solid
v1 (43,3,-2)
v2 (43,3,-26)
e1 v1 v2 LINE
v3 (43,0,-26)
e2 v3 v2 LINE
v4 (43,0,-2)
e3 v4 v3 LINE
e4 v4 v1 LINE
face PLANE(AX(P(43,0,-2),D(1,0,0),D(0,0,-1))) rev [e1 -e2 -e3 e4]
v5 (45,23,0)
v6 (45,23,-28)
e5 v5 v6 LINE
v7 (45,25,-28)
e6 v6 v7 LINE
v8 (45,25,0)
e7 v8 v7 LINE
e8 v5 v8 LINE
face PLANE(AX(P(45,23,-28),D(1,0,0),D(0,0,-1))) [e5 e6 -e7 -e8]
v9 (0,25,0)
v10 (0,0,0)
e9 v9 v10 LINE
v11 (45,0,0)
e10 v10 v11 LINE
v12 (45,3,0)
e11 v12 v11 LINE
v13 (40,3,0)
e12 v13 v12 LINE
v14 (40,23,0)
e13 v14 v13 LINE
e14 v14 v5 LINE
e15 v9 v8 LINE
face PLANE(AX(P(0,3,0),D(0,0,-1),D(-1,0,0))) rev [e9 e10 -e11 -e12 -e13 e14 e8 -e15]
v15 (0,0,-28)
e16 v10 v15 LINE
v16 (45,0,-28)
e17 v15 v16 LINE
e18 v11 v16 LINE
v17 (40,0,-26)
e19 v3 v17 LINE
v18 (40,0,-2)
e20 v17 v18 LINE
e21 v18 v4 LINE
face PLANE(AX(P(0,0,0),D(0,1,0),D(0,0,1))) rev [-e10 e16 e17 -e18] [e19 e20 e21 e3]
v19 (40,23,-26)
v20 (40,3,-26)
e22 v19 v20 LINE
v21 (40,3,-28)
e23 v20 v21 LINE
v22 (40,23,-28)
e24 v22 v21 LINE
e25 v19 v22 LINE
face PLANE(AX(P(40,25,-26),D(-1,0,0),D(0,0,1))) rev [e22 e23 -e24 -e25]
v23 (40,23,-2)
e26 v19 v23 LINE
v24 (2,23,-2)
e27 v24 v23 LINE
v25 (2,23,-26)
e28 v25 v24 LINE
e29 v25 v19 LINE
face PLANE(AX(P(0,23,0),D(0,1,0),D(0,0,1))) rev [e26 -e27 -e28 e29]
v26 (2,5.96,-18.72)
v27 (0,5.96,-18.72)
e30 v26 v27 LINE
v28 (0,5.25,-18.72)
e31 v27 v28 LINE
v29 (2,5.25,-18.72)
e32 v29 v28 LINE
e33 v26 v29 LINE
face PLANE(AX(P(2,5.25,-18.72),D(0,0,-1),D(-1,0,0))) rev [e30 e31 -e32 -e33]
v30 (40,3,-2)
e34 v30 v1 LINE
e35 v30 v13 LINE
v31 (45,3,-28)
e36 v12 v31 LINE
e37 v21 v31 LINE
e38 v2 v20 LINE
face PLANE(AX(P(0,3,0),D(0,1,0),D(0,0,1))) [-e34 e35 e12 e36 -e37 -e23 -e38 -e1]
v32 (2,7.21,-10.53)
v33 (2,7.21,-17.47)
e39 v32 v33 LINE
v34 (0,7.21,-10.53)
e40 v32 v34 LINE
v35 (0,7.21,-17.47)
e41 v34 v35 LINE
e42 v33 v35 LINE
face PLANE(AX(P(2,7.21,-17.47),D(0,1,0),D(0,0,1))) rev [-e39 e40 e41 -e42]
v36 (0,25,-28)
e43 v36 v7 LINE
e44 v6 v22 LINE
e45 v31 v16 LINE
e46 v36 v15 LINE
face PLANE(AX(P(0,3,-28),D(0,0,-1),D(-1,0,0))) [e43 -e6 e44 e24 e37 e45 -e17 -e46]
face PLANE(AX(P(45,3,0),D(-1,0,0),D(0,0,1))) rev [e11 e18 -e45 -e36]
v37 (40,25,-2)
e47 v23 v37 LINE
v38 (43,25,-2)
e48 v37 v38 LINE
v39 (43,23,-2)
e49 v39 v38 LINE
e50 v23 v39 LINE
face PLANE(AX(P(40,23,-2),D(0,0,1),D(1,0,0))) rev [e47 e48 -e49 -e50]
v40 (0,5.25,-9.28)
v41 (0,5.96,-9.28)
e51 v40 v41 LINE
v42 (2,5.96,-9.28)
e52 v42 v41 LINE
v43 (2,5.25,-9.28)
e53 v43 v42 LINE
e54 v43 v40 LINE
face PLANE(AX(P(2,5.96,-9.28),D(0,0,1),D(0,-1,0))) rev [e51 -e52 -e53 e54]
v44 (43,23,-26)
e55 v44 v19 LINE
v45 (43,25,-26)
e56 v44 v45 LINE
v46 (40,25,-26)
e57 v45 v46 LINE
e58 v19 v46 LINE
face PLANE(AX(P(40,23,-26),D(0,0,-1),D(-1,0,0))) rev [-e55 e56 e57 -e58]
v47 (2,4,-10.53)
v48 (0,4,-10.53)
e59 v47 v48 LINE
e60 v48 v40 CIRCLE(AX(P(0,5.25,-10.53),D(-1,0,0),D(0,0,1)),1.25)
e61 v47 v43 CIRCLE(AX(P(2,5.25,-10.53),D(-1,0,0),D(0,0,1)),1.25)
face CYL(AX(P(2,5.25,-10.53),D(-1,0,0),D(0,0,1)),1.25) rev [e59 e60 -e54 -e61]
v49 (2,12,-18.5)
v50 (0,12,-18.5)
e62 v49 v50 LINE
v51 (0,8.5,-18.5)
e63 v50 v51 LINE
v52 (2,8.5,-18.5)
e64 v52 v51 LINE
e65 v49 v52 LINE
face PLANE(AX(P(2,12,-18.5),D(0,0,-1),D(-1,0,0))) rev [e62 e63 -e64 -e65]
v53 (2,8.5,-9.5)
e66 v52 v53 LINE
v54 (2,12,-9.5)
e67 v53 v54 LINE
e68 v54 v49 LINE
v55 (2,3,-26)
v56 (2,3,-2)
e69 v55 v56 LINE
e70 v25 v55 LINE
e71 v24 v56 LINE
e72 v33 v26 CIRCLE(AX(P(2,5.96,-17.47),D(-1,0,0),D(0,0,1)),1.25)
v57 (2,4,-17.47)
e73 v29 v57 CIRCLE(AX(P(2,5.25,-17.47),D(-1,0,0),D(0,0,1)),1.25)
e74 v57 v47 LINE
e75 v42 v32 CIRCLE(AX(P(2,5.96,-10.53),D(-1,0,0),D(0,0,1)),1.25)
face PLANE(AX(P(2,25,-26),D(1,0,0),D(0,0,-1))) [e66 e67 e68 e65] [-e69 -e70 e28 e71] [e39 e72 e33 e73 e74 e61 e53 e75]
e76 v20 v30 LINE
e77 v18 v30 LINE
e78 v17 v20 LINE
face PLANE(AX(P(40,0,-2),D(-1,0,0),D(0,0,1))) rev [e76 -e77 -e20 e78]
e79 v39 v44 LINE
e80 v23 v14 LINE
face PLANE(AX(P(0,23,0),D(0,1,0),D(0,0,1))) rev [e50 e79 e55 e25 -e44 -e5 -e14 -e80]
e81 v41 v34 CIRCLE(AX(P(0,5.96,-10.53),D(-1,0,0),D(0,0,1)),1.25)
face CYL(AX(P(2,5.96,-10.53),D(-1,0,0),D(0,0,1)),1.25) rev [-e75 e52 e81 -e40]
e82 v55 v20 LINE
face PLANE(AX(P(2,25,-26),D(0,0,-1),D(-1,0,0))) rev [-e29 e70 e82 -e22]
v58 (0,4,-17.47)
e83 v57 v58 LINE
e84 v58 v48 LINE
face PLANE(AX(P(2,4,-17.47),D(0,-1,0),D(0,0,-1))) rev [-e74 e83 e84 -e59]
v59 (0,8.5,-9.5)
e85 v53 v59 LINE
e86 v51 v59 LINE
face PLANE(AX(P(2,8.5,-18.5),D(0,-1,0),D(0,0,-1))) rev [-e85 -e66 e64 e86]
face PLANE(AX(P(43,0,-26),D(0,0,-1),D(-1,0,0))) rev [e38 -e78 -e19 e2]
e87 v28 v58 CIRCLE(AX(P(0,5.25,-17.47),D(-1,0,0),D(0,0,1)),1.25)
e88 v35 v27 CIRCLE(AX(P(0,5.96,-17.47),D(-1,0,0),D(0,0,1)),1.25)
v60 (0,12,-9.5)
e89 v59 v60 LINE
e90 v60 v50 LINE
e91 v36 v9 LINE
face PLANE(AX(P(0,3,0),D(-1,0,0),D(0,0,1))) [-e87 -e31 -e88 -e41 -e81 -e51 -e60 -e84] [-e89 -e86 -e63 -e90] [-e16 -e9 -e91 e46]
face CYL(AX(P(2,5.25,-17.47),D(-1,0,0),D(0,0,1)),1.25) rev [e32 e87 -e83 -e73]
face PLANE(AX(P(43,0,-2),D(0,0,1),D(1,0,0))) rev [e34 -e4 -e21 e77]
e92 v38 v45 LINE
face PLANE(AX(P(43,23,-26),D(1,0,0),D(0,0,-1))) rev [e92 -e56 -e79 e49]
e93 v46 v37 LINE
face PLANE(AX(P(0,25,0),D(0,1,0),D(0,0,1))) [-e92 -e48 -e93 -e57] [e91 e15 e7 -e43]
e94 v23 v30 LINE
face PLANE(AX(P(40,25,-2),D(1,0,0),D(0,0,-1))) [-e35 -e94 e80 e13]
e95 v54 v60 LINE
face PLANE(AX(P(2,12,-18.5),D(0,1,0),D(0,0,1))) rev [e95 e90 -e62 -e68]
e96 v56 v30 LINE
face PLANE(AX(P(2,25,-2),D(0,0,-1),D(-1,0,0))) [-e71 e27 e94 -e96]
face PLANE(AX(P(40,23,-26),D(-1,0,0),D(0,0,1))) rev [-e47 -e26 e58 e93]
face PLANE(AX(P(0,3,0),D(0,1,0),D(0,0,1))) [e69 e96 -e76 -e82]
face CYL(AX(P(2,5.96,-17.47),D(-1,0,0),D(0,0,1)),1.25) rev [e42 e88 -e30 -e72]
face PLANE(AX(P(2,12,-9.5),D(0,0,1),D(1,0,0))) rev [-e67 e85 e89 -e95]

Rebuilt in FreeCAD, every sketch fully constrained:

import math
import FreeCAD as App
import Part
import Sketcher
from FreeCAD import Vector

doc = App.newDocument("Part")
body = doc.addObject("PartDesign::Body", "Body")

sketch1 = body.newObject("Sketcher::SketchObject", "Sketch")
sketch1.AttachmentSupport = (doc.getObject("XZ_Plane"), [""])
sketch1.MapMode = "FlatFace"
sketch1.addGeometry([
    Part.LineSegment(Vector(0, -28, 0), Vector(0, 0, 0)),
    Part.LineSegment(Vector(0, 0, 0), Vector(45, 0, 0)),
    Part.LineSegment(Vector(45, 0, 0), Vector(45, -28, 0)),
    Part.LineSegment(Vector(45, -28, 0), Vector(0, -28, 0)),
], False)
sketch1.addConstraint([
    Sketcher.Constraint("Coincident", 0, 2, 1, 1),
    Sketcher.Constraint("Coincident", 1, 2, 2, 1),
    Sketcher.Constraint("Coincident", 2, 2, 3, 1),
    Sketcher.Constraint("Coincident", 3, 2, 0, 1),
    Sketcher.Constraint("Vertical", 0),
    Sketcher.Constraint("Horizontal", 1),
    Sketcher.Constraint("Vertical", 2),
    Sketcher.Constraint("Horizontal", 3),
    Sketcher.Constraint("Coincident", 0, 2, -1, 1),
    Sketcher.Constraint("DistanceX", 1, 1, 1, 2, 45.0),
    Sketcher.Constraint("DistanceY", 0, 1, 0, 2, 28.0),
])
pad1 = body.newObject("PartDesign::Pad", "Pad")
pad1.Profile = sketch1
pad1.Length = 3
pad1.Reversed = True

sketch2 = body.newObject("Sketcher::SketchObject", "Sketch001")
sketch2.AttachmentSupport = (doc.getObject("XZ_Plane"), [""])
sketch2.MapMode = "FlatFace"
sketch2.AttachmentOffset = App.Placement(Vector(0, 0, -3), App.Rotation())
sketch2.addGeometry([
    Part.LineSegment(Vector(40, -26, 0), Vector(40, -28, 0)),
    Part.LineSegment(Vector(40, -28, 0), Vector(0, -28, 0)),
    Part.LineSegment(Vector(0, -28, 0), Vector(0, 0, 0)),
    Part.LineSegment(Vector(0, 0, 0), Vector(40, 0, 0)),
    Part.LineSegment(Vector(40, 0, 0), Vector(40, -2, 0)),
    Part.LineSegment(Vector(40, -2, 0), Vector(2, -2, 0)),
    Part.LineSegment(Vector(2, -2, 0), Vector(2, -26, 0)),
    Part.LineSegment(Vector(2, -26, 0), Vector(40, -26, 0)),
], False)
sketch2.addConstraint([
    Sketcher.Constraint("Coincident", 0, 2, 1, 1),
    Sketcher.Constraint("Coincident", 1, 2, 2, 1),
    Sketcher.Constraint("Coincident", 2, 2, 3, 1),
    Sketcher.Constraint("Coincident", 3, 2, 4, 1),
    Sketcher.Constraint("Coincident", 4, 2, 5, 1),
    Sketcher.Constraint("Coincident", 5, 2, 6, 1),
    Sketcher.Constraint("Coincident", 6, 2, 7, 1),
    Sketcher.Constraint("Coincident", 7, 2, 0, 1),
    Sketcher.Constraint("Vertical", 0),
    Sketcher.Constraint("Horizontal", 1),
    Sketcher.Constraint("Vertical", 2),
    Sketcher.Constraint("Horizontal", 3),
    Sketcher.Constraint("Vertical", 4),
    Sketcher.Constraint("Horizontal", 5),
    Sketcher.Constraint("Vertical", 6),
    Sketcher.Constraint("Horizontal", 7),
    Sketcher.Constraint("Coincident", 2, 2, -1, 1),
    Sketcher.Constraint("Vertical", 0, 2, 3, 2),
    Sketcher.Constraint("Equal", 0, 4),
    Sketcher.Constraint("DistanceX", 1, 2, 1, 1, 40.0),
    Sketcher.Constraint("DistanceX", 5, 2, 5, 1, 38.0),
    Sketcher.Constraint("DistanceY", 0, 2, 0, 1, 2.0),
    Sketcher.Constraint("DistanceY", 2, 1, 2, 2, 28.0),
])
pad2 = body.newObject("PartDesign::Pad", "Pad001")
pad2.Profile = sketch2
pad2.Length = 22
pad2.Reversed = True

sketch3 = body.newObject("Sketcher::SketchObject", "Sketch002")
sketch3.AttachmentSupport = (doc.getObject("XZ_Plane"), [""])
sketch3.MapMode = "FlatFace"
sketch3.AttachmentOffset = App.Placement(Vector(0, 0, -25), App.Rotation())
sketch3.addGeometry([
    Part.LineSegment(Vector(0, -28, 0), Vector(0, 0, 0)),
    Part.LineSegment(Vector(0, 0, 0), Vector(45, 0, 0)),
    Part.LineSegment(Vector(45, 0, 0), Vector(45, -28, 0)),
    Part.LineSegment(Vector(45, -28, 0), Vector(0, -28, 0)),
    Part.LineSegment(Vector(43, -2, 0), Vector(40, -2, 0)),
    Part.LineSegment(Vector(40, -2, 0), Vector(40, -26, 0)),
    Part.LineSegment(Vector(40, -26, 0), Vector(43, -26, 0)),
    Part.LineSegment(Vector(43, -26, 0), Vector(43, -2, 0)),
], False)
sketch3.addConstraint([
    Sketcher.Constraint("Coincident", 0, 2, 1, 1),
    Sketcher.Constraint("Coincident", 1, 2, 2, 1),
    Sketcher.Constraint("Coincident", 2, 2, 3, 1),
    Sketcher.Constraint("Coincident", 3, 2, 0, 1),
    Sketcher.Constraint("Coincident", 4, 2, 5, 1),
    Sketcher.Constraint("Coincident", 5, 2, 6, 1),
    Sketcher.Constraint("Coincident", 6, 2, 7, 1),
    Sketcher.Constraint("Coincident", 7, 2, 4, 1),
    Sketcher.Constraint("Vertical", 0),
    Sketcher.Constraint("Horizontal", 1),
    Sketcher.Constraint("Vertical", 2),
    Sketcher.Constraint("Horizontal", 3),
    Sketcher.Constraint("Horizontal", 4),
    Sketcher.Constraint("Vertical", 5),
    Sketcher.Constraint("Horizontal", 6),
    Sketcher.Constraint("Vertical", 7),
    Sketcher.Constraint("Coincident", 0, 2, -1, 1),
    Sketcher.Constraint("DistanceX", 1, 1, 1, 2, 45.0),
    Sketcher.Constraint("DistanceX", 4, 2, 4, 1, 3.0),
    Sketcher.Constraint("DistanceY", 0, 1, 0, 2, 28.0),
    Sketcher.Constraint("DistanceY", 5, 2, 5, 1, 24.0),
    Sketcher.Constraint("DistanceX", -1, 1, 4, 2, 40.0),
    Sketcher.Constraint("DistanceY", 4, 2, -1, 1, 2.0),
])
pad3 = body.newObject("PartDesign::Pad", "Pad002")
pad3.Profile = sketch3
pad3.Length = 2

sketch4 = body.newObject("Sketcher::SketchObject", "Sketch003")
sketch4.AttachmentSupport = (doc.getObject("YZ_Plane"), [""])
sketch4.MapMode = "FlatFace"
sketch4.addGeometry([
    Part.LineSegment(Vector(6, -18.7, 0), Vector(5.2, -18.7, 0)),
    Part.ArcOfCircle(Part.Circle(Vector(5.3, -17.5, 0), Vector(0, 0, 1), 1.3), math.radians(-180), math.radians(-90)),
    Part.LineSegment(Vector(4, -17.5, 0), Vector(4, -10.5, 0)),
    Part.ArcOfCircle(Part.Circle(Vector(5.3, -10.5, 0), Vector(0, 0, 1), 1.3), math.radians(90), math.radians(180)),
    Part.LineSegment(Vector(5.2, -9.3, 0), Vector(6, -9.3, 0)),
    Part.ArcOfCircle(Part.Circle(Vector(6, -10.5, 0), Vector(0, 0, 1), 1.3), math.radians(0), math.radians(90)),
    Part.LineSegment(Vector(7.2, -10.5, 0), Vector(7.2, -17.5, 0)),
    Part.ArcOfCircle(Part.Circle(Vector(6, -17.5, 0), Vector(0, 0, 1), 1.3), math.radians(-90), math.radians(0)),
    Part.LineSegment(Vector(12, -18.5, 0), Vector(8.5, -18.5, 0)),
    Part.LineSegment(Vector(8.5, -18.5, 0), Vector(8.5, -9.5, 0)),
    Part.LineSegment(Vector(8.5, -9.5, 0), Vector(12, -9.5, 0)),
    Part.LineSegment(Vector(12, -9.5, 0), Vector(12, -18.5, 0)),
], False)
sketch4.addConstraint([
    Sketcher.Constraint("Tangent", 0, 2, 1, 2),
    Sketcher.Constraint("Tangent", 1, 1, 2, 1),
    Sketcher.Constraint("Tangent", 2, 2, 3, 2),
    Sketcher.Constraint("Tangent", 3, 1, 4, 1),
    Sketcher.Constraint("Tangent", 4, 2, 5, 2),
    Sketcher.Constraint("Tangent", 5, 1, 6, 1),
    Sketcher.Constraint("Tangent", 6, 2, 7, 2),
    Sketcher.Constraint("Tangent", 7, 1, 0, 1),
    Sketcher.Constraint("Coincident", 8, 2, 9, 1),
    Sketcher.Constraint("Coincident", 9, 2, 10, 1),
    Sketcher.Constraint("Coincident", 10, 2, 11, 1),
    Sketcher.Constraint("Coincident", 11, 2, 8, 1),
    Sketcher.Constraint("Horizontal", 0),
    Sketcher.Constraint("Vertical", 2),
    Sketcher.Constraint("Horizontal", 4),
    Sketcher.Constraint("Vertical", 6),
    Sketcher.Constraint("Horizontal", 8),
    Sketcher.Constraint("Vertical", 9),
    Sketcher.Constraint("Horizontal", 10),
    Sketcher.Constraint("Vertical", 11),
    Sketcher.Constraint("Equal", 1, 3),
    Sketcher.Constraint("Equal", 3, 5),
    Sketcher.Constraint("Equal", 5, 7),
    Sketcher.Constraint("DistanceY", 9, 1, 9, 2, 9.0),
    Sketcher.Constraint("Radius", 1, 1.25),
    Sketcher.Constraint("DistanceX", 8, 2, 8, 1, 3.5),
    Sketcher.Constraint("DistanceX", -1, 1, 1, 1, 4.0),
    Sketcher.Constraint("DistanceX", -1, 1, 10, 2, 12.0),
    Sketcher.Constraint("DistanceX", 0, 2, 0, 1, 0.71),
    Sketcher.Constraint("DistanceY", 2, 1, 2, 2, 6.94),
    Sketcher.Constraint("DistanceY", 8, 2, -1, 1, 18.5),
    Sketcher.Constraint("DistanceY", 1, 3, -1, 1, 17.47),
])
pocket1 = body.newObject("PartDesign::Pocket", "Pocket")
pocket1.Profile = sketch4
pocket1.Length = 2
pocket1.Reversed = True

sketch5 = body.newObject("Sketcher::SketchObject", "Sketch004")
sketch5.AttachmentSupport = (doc.getObject("XZ_Plane"), [""])
sketch5.MapMode = "FlatFace"
sketch5.AttachmentOffset = App.Placement(Vector(0, 0, -3), App.Rotation())
sketch5.addGeometry([
    Part.LineSegment(Vector(40, -26, 0), Vector(40, -2, 0)),
    Part.LineSegment(Vector(40, -2, 0), Vector(43, -2, 0)),
    Part.LineSegment(Vector(43, -2, 0), Vector(43, -26, 0)),
    Part.LineSegment(Vector(43, -26, 0), Vector(40, -26, 0)),
], False)
sketch5.addConstraint([
    Sketcher.Constraint("Coincident", 0, 2, 1, 1),
    Sketcher.Constraint("Coincident", 1, 2, 2, 1),
    Sketcher.Constraint("Coincident", 2, 2, 3, 1),
    Sketcher.Constraint("Coincident", 3, 2, 0, 1),
    Sketcher.Constraint("Vertical", 0),
    Sketcher.Constraint("Horizontal", 1),
    Sketcher.Constraint("Vertical", 2),
    Sketcher.Constraint("Horizontal", 3),
    Sketcher.Constraint("DistanceX", 1, 1, 1, 2, 3.0),
    Sketcher.Constraint("DistanceY", 0, 1, 0, 2, 24.0),
    Sketcher.Constraint("DistanceX", -1, 1, 0, 2, 40.0),
    Sketcher.Constraint("DistanceY", 0, 2, -1, 1, 2.0),
])
pocket2 = body.newObject("PartDesign::Pocket", "Pocket001")
pocket2.Profile = sketch5
pocket2.Length = 3
pocket2.Reversed = True

doc.recompute()
